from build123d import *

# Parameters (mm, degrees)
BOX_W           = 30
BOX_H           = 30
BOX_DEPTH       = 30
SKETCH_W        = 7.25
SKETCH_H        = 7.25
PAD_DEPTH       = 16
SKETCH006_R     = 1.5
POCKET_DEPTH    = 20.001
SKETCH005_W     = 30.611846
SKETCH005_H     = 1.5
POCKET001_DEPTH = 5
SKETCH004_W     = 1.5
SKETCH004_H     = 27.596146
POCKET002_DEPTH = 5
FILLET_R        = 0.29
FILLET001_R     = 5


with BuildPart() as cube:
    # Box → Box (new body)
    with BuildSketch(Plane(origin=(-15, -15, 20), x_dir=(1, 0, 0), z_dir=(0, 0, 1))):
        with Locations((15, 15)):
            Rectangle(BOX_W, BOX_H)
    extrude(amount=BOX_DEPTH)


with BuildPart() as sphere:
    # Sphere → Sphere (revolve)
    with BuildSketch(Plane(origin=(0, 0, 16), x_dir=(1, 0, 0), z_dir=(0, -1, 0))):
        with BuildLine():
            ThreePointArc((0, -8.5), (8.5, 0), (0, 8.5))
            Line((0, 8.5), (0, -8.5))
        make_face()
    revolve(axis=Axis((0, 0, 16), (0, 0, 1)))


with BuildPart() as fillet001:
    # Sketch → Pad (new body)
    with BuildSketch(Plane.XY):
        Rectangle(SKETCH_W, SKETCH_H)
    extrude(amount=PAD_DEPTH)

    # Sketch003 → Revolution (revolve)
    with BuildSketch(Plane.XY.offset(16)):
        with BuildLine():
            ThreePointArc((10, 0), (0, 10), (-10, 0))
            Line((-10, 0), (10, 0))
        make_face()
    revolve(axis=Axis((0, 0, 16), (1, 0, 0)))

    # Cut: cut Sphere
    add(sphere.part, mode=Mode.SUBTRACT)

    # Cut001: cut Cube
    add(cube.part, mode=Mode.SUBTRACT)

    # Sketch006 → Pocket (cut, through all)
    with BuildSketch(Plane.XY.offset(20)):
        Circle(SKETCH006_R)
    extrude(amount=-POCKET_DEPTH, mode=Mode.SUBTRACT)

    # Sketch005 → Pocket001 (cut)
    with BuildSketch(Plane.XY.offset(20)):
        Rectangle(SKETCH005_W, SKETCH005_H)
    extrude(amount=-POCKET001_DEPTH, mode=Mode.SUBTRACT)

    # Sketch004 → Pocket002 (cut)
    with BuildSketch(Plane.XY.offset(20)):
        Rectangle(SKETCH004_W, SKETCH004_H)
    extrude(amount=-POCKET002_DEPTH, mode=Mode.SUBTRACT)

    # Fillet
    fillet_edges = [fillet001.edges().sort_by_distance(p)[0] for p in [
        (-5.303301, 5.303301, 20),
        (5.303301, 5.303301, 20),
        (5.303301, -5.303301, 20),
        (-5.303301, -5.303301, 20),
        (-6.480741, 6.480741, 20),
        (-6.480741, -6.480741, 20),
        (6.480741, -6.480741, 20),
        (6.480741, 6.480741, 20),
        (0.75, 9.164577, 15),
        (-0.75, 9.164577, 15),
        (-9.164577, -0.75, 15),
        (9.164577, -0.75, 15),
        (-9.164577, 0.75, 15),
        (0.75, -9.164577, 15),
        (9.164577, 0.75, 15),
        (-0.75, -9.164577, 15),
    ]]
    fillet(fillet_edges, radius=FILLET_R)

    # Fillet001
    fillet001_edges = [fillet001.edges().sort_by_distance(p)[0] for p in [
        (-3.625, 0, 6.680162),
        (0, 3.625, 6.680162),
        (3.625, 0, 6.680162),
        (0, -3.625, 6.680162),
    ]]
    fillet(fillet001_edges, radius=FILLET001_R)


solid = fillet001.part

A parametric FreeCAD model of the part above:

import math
import FreeCAD as App
import Part
import Sketcher
from FreeCAD import Vector
Q = App.Units.Quantity


def edges_at(feature, points):
    """Names of the edges that pass closest to the given points."""
    edges = feature.Shape.Edges
    near = lambda p: min(range(len(edges)), key=lambda i: edges[i].distToShape(Part.Vertex(*p))[0])
    return sorted({f"Edge{near(p) + 1}" for p in points})


def add_polygon(sketch, points):
    """Adds a closed chain of lines whose ends are joined by coincident constraints."""
    first, n = sketch.GeometryCount, len(points)
    for a, b in zip(points, points[1:] + points[:1]):
        sketch.addGeometry(Part.LineSegment(App.Vector(*a, 0), App.Vector(*b, 0)), False)
    for i in range(n):
        sketch.addConstraint(Sketcher.Constraint("Coincident", first + i, 2, first + (i + 1) % n, 1))

doc = App.newDocument("Part")
body = doc.addObject("PartDesign::Body", "Body")

# Sketch on XY plane
sketch1 = body.newObject("Sketcher::SketchObject", "Sketch")
sketch1.AttachmentSupport = (doc.getObject("XY_Plane"), [""])
sketch1.MapMode = "FlatFace"
sketch1.AttachmentOffset = App.Placement(Vector(0, 0, 20), App.Rotation())
add_polygon(sketch1, [(-15, 15), (-15, -15), (15, -15), (15, 15)])  # lines 0-3
sketch1.addConstraint([
    Sketcher.Constraint("Vertical", 0),
    Sketcher.Constraint("Horizontal", 1),
    Sketcher.Constraint("Vertical", 2),
    Sketcher.Constraint("Horizontal", 3),
    Sketcher.Constraint("Symmetric", 0, 2, 2, 2, -1, 1),
    Sketcher.Constraint("Equal", 3, 0),
    Sketcher.Constraint("DistanceX", 1, 1, 1, 2, Q("30 mm")),
])
pad1 = body.newObject("PartDesign::Pad", "Pad")
pad1.Profile = sketch1
pad1.Length = 30
body2 = doc.addObject("PartDesign::Body", "Body001")

# Sketch on XZ plane
sketch2 = body2.newObject("Sketcher::SketchObject", "Sketch001")
sketch2.AttachmentSupport = (doc.getObject("XZ_Plane001"), [""])
sketch2.MapMode = "FlatFace"
sketch2.addGeometry([
    Part.ArcOfCircle(Part.Circle(Vector(0, 16, 0), Vector(0, 0, 1), 8), math.radians(-90), math.radians(90)),
    Part.LineSegment(Vector(0, 24, 0), Vector(0, 8, 0)),
], False)
sketch2.addConstraint([
    Sketcher.Constraint("Coincident", 0, 1, 1, 2),
    Sketcher.Constraint("Coincident", 1, 1, 0, 2),
    Sketcher.Constraint("Vertical", 1),
    Sketcher.Constraint("PointOnObject", 0, 3, -2),
    Sketcher.Constraint("PointOnObject", 0, 1, -2),
    Sketcher.Constraint("Radius", 0, Q("8.5 mm")),
    Sketcher.Constraint("DistanceY", -1, 1, 0, 3, Q("16 mm")),
])
revolution = body2.newObject("PartDesign::Revolution", "Revolution")
revolution.Profile = sketch2
revolution.ReferenceAxis = (sketch2, ["V_Axis"])
revolution.Angle = 360
body3 = doc.addObject("PartDesign::Body", "Body002")

# Sketch on XY plane
sketch3 = body3.newObject("Sketcher::SketchObject", "Sketch002")
sketch3.AttachmentSupport = (doc.getObject("XY_Plane002"), [""])
sketch3.MapMode = "FlatFace"
add_polygon(sketch3, [(-4, 4), (-4, -4), (4, -4), (4, 4)])  # lines 0-3
sketch3.addConstraint([
    Sketcher.Constraint("Vertical", 0),
    Sketcher.Constraint("Horizontal", 1),
    Sketcher.Constraint("Vertical", 2),
    Sketcher.Constraint("Horizontal", 3),
    Sketcher.Constraint("Symmetric", 0, 2, 2, 2, -1, 1),
    Sketcher.Constraint("Equal", 3, 0),
    Sketcher.Constraint("DistanceX", 1, 1, 1, 2, Q("7.25 mm")),
])
pad2 = body3.newObject("PartDesign::Pad", "Pad001")
pad2.Profile = sketch3
pad2.Length = 16

# Sketch on XY plane
sketch4 = body3.newObject("Sketcher::SketchObject", "Sketch003")
sketch4.AttachmentSupport = (doc.getObject("XY_Plane002"), [""])
sketch4.MapMode = "FlatFace"
sketch4.AttachmentOffset = App.Placement(Vector(0, 0, 16), App.Rotation())
sketch4.addGeometry([
    Part.ArcOfCircle(Part.Circle(Vector(0, 0, 0), Vector(0, 0, 1), 10), math.radians(0), math.radians(180)),
    Part.LineSegment(Vector(-10, 0, 0), Vector(10, 0, 0)),
], False)
sketch4.addConstraint([
    Sketcher.Constraint("Coincident", 0, 1, 1, 2),
    Sketcher.Constraint("Coincident", 1, 1, 0, 2),
    Sketcher.Constraint("Horizontal", 1),
    Sketcher.Constraint("Coincident", 0, 3, -1, 1),
    Sketcher.Constraint("PointOnObject", 0, 1, -1),
    Sketcher.Constraint("Radius", 0, Q("10 mm")),
])
revolution2 = body3.newObject("PartDesign::Revolution", "Revolution001")
revolution2.Profile = sketch4
revolution2.ReferenceAxis = (sketch4, ["H_Axis"])
revolution2.Angle = 360
doc.recompute()

boolean = body3.newObject("PartDesign::Boolean", "Boolean")
boolean.Type = "Cut"
boolean.addObjects([body2])
doc.recompute()

boolean2 = body3.newObject("PartDesign::Boolean", "Boolean001")
boolean2.Type = "Cut"
boolean2.addObjects([body])

# Sketch on XY plane
sketch5 = body3.newObject("Sketcher::SketchObject", "Sketch004")
sketch5.AttachmentSupport = (doc.getObject("XY_Plane002"), [""])
sketch5.MapMode = "FlatFace"
sketch5.AttachmentOffset = App.Placement(Vector(0, 0, 20), App.Rotation())
sketch5.addGeometry(Part.Circle(Vector(0, 0, 0), Vector(0, 0, 1), 1.5), False)
sketch5.addConstraint([
    Sketcher.Constraint("Coincident", 0, 3, -1, 1),
    Sketcher.Constraint("Diameter", 0, Q("3 mm")),
])
pocket1 = body3.newObject("PartDesign::Pocket", "Pocket")
pocket1.Profile = sketch5
pocket1.Type = "ThroughAll"

# Sketch on XY plane
sketch6 = body3.newObject("Sketcher::SketchObject", "Sketch005")
sketch6.AttachmentSupport = (doc.getObject("XY_Plane002"), [""])
sketch6.MapMode = "FlatFace"
sketch6.AttachmentOffset = App.Placement(Vector(0, 0, 20), App.Rotation())
add_polygon(sketch6, [(-15.3, 0.8), (-15.3, -0.8), (15.3, -0.8), (15.3, 0.8)])  # lines 0-3
sketch6.addConstraint([
    Sketcher.Constraint("Vertical", 0),
    Sketcher.Constraint("Horizontal", 1),
    Sketcher.Constraint("Vertical", 2),
    Sketcher.Constraint("Horizontal", 3),
    Sketcher.Constraint("Symmetric", 0, 2, 2, 2, -1, 1),
    Sketcher.Constraint("DistanceY", 0, 2, 0, 1, Q("1.5 mm")),
    Sketcher.Constraint("DistanceX", 1, 1, 1, 2, Q("30.611846 mm")),
])
pocket2 = body3.newObject("PartDesign::Pocket", "Pocket001")
pocket2.Profile = sketch6
pocket2.Length = 5

# Sketch on XY plane
sketch7 = body3.newObject("Sketcher::SketchObject", "Sketch006")
sketch7.AttachmentSupport = (doc.getObject("XY_Plane002"), [""])
sketch7.MapMode = "FlatFace"
sketch7.AttachmentOffset = App.Placement(Vector(0, 0, 20), App.Rotation())
add_polygon(sketch7, [(-0.8, 13.8), (-0.8, -13.8), (0.8, -13.8), (0.8, 13.8)])  # lines 0-3
sketch7.addConstraint([
    Sketcher.Constraint("Vertical", 0),
    Sketcher.Constraint("Horizontal", 1),
    Sketcher.Constraint("Vertical", 2),
    Sketcher.Constraint("Horizontal", 3),
    Sketcher.Constraint("Symmetric", 0, 2, 2, 2, -1, 1),
    Sketcher.Constraint("DistanceX", 1, 1, 1, 2, Q("1.5 mm")),
    Sketcher.Constraint("DistanceY", 0, 2, 0, 1, Q("27.596146 mm")),
])
pocket3 = body3.newObject("PartDesign::Pocket", "Pocket002")
pocket3.Profile = sketch7
pocket3.Length = 5
doc.recompute()

fillet = body3.newObject("PartDesign::Fillet", "Fillet")
fillet.Base = (pocket3, edges_at(pocket3, [
    (-5.303, 5.303, 20),
    (5.303, 5.303, 20),
    (5.303, -5.303, 20),
    (-5.303, -5.303, 20),
    (-6.481, 6.481, 20),
    (-6.481, -6.481, 20),
    (6.481, -6.481, 20),
    (6.481, 6.481, 20),
    (0.75, 9.165, 15),
    (-0.75, 9.165, 15),
    (-9.165, -0.75, 15),
    (9.165, -0.75, 15),
    (-9.165, 0.75, 15),
    (0.75, -9.165, 15),
    (9.165, 0.75, 15),
    (-0.75, -9.165, 15),
]))
fillet.Radius = 0.29
doc.recompute()

fillet2 = body3.newObject("PartDesign::Fillet", "Fillet001")
fillet2.Base = (fillet, edges_at(fillet, [
    (-3.625, 0, 6.68),
    (0, 3.625, 6.68),
    (3.625, 0, 6.68),
    (0, -3.625, 6.68),
]))
fillet2.Radius = 5

doc.recompute()
